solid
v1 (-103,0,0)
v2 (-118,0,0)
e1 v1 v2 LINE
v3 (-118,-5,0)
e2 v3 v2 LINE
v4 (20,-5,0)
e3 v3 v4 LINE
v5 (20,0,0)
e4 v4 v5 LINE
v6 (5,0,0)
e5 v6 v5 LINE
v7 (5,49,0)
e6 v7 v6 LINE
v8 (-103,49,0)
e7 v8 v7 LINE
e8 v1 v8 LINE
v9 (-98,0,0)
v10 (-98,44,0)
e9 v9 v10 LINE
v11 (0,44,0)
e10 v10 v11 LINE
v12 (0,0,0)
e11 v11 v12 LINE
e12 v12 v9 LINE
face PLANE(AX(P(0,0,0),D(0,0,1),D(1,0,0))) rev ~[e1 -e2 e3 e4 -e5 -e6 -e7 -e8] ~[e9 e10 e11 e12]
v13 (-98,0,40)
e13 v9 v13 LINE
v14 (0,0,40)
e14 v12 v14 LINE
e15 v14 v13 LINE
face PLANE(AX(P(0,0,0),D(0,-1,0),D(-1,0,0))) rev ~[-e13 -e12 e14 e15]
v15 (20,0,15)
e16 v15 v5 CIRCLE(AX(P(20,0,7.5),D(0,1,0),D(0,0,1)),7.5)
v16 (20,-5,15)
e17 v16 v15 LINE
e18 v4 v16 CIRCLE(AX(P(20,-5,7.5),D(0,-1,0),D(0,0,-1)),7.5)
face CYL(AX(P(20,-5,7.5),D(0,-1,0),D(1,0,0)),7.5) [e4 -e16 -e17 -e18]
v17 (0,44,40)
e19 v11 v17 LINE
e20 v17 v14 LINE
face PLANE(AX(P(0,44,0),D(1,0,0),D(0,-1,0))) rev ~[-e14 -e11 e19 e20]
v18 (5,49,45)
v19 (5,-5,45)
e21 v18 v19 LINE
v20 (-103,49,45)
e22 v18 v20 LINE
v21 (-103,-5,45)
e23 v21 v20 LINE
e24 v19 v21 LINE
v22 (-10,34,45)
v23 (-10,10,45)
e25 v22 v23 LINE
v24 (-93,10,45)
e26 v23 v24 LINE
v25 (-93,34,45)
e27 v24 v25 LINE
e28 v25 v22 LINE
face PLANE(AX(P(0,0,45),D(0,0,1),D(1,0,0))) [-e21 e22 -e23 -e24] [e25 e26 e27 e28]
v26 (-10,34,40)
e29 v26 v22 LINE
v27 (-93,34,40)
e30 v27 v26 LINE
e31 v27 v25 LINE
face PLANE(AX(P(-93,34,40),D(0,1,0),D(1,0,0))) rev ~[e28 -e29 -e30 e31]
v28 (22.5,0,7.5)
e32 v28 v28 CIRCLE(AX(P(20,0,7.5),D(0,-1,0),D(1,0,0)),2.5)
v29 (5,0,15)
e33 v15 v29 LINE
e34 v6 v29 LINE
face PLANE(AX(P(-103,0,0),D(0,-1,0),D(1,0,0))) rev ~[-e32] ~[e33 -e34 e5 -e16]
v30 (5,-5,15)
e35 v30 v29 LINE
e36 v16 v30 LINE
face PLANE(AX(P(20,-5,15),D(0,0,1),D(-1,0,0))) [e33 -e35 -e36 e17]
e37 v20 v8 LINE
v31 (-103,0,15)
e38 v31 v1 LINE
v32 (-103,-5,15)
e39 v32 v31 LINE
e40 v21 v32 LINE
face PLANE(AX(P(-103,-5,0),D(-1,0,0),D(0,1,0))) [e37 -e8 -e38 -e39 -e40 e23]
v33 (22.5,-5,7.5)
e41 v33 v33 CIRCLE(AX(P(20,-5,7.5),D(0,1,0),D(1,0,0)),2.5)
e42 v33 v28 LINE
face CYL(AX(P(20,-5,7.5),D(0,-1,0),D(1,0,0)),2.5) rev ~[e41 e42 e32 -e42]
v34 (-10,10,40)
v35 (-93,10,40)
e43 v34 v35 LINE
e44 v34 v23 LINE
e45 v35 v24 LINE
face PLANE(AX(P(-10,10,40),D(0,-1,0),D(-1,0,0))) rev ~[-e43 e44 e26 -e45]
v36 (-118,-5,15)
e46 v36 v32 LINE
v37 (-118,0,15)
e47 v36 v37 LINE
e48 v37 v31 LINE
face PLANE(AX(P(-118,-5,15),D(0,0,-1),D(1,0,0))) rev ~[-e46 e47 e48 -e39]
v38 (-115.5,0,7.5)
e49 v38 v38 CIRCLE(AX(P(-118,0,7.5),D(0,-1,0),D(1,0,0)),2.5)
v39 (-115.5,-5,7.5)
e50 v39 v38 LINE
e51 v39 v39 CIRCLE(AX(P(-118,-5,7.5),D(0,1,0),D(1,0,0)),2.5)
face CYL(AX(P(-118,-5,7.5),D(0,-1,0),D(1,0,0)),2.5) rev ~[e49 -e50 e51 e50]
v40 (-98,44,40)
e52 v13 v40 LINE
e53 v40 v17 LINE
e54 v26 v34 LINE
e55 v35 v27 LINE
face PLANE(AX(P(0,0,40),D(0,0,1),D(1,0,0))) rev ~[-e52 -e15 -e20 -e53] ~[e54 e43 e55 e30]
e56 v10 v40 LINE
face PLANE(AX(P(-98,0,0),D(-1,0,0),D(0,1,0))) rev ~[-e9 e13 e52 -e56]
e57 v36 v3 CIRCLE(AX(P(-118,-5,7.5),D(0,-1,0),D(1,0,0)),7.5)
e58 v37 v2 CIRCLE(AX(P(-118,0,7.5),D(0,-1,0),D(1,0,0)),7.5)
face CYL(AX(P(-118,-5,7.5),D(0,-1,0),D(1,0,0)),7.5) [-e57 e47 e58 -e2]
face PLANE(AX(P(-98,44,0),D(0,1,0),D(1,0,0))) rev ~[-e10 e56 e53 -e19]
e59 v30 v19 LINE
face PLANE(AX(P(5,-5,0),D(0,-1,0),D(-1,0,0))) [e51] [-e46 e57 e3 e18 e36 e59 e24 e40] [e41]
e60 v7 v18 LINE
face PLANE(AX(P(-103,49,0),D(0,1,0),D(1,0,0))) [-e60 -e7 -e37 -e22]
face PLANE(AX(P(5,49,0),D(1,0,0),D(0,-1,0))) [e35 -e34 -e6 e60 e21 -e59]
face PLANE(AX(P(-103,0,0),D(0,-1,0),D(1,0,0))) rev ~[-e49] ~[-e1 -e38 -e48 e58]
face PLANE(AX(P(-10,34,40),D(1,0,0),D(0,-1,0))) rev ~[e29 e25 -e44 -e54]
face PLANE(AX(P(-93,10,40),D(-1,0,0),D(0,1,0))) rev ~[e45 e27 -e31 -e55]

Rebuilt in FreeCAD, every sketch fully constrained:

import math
import FreeCAD as App
import Part
import Sketcher

V = App.Vector
Q = App.Units.Quantity


def add_polygon(sketch, points):
    """Adds a closed chain of lines whose ends are joined by coincident constraints."""
    first, n = sketch.GeometryCount, len(points)
    for a, b in zip(points, points[1:] + points[:1]):
        sketch.addGeometry(Part.LineSegment(App.Vector(*a, 0), App.Vector(*b, 0)), False)
    for i in range(n):
        sketch.addConstraint(Sketcher.Constraint("Coincident", first + i, 2, first + (i + 1) % n, 1))

doc = App.newDocument("Part")
body = doc.addObject("PartDesign::Body", "Body")

sketch1 = body.newObject("Sketcher::SketchObject", "Sketch")
sketch1.AttachmentSupport = (doc.getObject("XY_Plane"), [""])
sketch1.MapMode = "FlatFace"
add_polygon(sketch1, [(-103, -5), (5, -5), (5, 49), (-103, 49)])
add_polygon(sketch1, [(0, 44), (0, 0), (-98, 0), (-98, 44)])
sketch1.addConstraint([
    Sketcher.Constraint("Horizontal", 0),
    Sketcher.Constraint("Vertical", 1),
    Sketcher.Constraint("Horizontal", 2),
    Sketcher.Constraint("Vertical", 3),
    Sketcher.Constraint("Vertical", 4),
    Sketcher.Constraint("Horizontal", 5),
    Sketcher.Constraint("Vertical", 6),
    Sketcher.Constraint("Horizontal", 7),
    Sketcher.Constraint("Coincident", 4, 2, -1, 1),
    Sketcher.Constraint("DistanceX", 5, 2, 5, 1, Q("98 mm")),
    Sketcher.Constraint("DistanceY", 4, 2, 4, 1, Q("44 mm")),
    Sketcher.Constraint("DistanceX", -1, 1, 0, 2, Q("5 mm")),
    Sketcher.Constraint("DistanceY", 0, 2, -1, 1, Q("5 mm")),
    Sketcher.Constraint("DistanceX", 3, 2, 5, 2, Q("5 mm")),
    Sketcher.Constraint("DistanceY", 6, 2, 2, 2, Q("5 mm")),
])
pad1 = body.newObject("PartDesign::Pad", "Pad")
pad1.Profile = sketch1
pad1.Length = 40

sketch2 = body.newObject("Sketcher::SketchObject", "Sketch001")
sketch2.AttachmentSupport = (doc.getObject("XY_Plane"), [""])
sketch2.MapMode = "FlatFace"
sketch2.AttachmentOffset = App.Placement(V(0, 0, 40), App.Rotation())
add_polygon(sketch2, [(5, -5), (5, 49), (-103, 49), (-103, -5)])
add_polygon(sketch2, [(-93, 10), (-93, 34), (-10, 34), (-10, 10)])
sketch2.addConstraint([
    Sketcher.Constraint("Vertical", 0),
    Sketcher.Constraint("Horizontal", 1),
    Sketcher.Constraint("Vertical", 2),
    Sketcher.Constraint("Horizontal", 3),
    Sketcher.Constraint("Vertical", 4),
    Sketcher.Constraint("Horizontal", 5),
    Sketcher.Constraint("Vertical", 6),
    Sketcher.Constraint("Horizontal", 7),
    Sketcher.Constraint("DistanceX", 5, 2, -1, 1, Q("10 mm")),
    Sketcher.Constraint("DistanceY", -1, 1, 6, 2, Q("10 mm")),
    Sketcher.Constraint("DistanceX", 1, 2, 4, 2, Q("10 mm")),
    Sketcher.Constraint("DistanceY", 4, 2, 1, 2, Q("15 mm")),
    Sketcher.Constraint("DistanceX", 5, 2, 0, 2, Q("15 mm")),
    Sketcher.Constraint("DistanceY", 3, 2, 6, 2, Q("15 mm")),
    Sketcher.Constraint("DistanceX", 1, 2, 1, 1, Q("108 mm")),
    Sketcher.Constraint("DistanceY", 0, 1, 0, 2, Q("54 mm")),
])
pad2 = body.newObject("PartDesign::Pad", "Pad001")
pad2.Profile = sketch2
pad2.Length = 5

sketch3 = body.newObject("Sketcher::SketchObject", "Sketch002")
sketch3.AttachmentSupport = (doc.getObject("XZ_Plane"), [""])
sketch3.MapMode = "FlatFace"
sketch3.AttachmentOffset = App.Placement(V(0, 0, 5), App.Rotation())
sketch3.addGeometry([
    Part.LineSegment(V(5, 15, 0), V(5, 0, 0)),
    Part.LineSegment(V(5, 0, 0), V(20, 0, 0)),
    Part.ArcOfCircle(Part.Circle(V(20, 7.5, 0), V(0, 0, 1), 7.5), math.radians(-90), math.radians(90)),
    Part.LineSegment(V(20, 15, 0), V(5, 15, 0)),
    Part.Circle(V(20, 7.5, 0), V(0, 0, 1), 2.5),
    Part.LineSegment(V(-118, 0, 0), V(-103, 0, 0)),
    Part.LineSegment(V(-103, 0, 0), V(-103, 15, 0)),
    Part.LineSegment(V(-103, 15, 0), V(-118, 15, 0)),
    Part.ArcOfCircle(Part.Circle(V(-118, 7.5, 0), V(0, 0, 1), 7.5), math.radians(90), math.radians(270)),
    Part.Circle(V(-118, 7.5, 0), V(0, 0, 1), 2.5),
], False)
sketch3.addConstraint([
    Sketcher.Constraint("Coincident", 0, 2, 1, 1),
    Sketcher.Constraint("Tangent", 1, 2, 2, 1),
    Sketcher.Constraint("Tangent", 2, 2, 3, 1),
    Sketcher.Constraint("Coincident", 3, 2, 0, 1),
    Sketcher.Constraint("Coincident", 5, 2, 6, 1),
    Sketcher.Constraint("Coincident", 6, 2, 7, 1),
    Sketcher.Constraint("Tangent", 7, 2, 8, 1),
    Sketcher.Constraint("Tangent", 8, 2, 5, 1),
    Sketcher.Constraint("Vertical", 0),
    Sketcher.Constraint("Horizontal", 1),
    Sketcher.Constraint("Horizontal", 3),
    Sketcher.Constraint("Horizontal", 5),
    Sketcher.Constraint("Vertical", 6),
    Sketcher.Constraint("Horizontal", 7),
    Sketcher.Constraint("Coincident", 4, 3, 2, 3),
    Sketcher.Constraint("Coincident", 9, 3, 8, 3),
    Sketcher.Constraint("Equal", 2, 8),
    Sketcher.Constraint("Equal", 4, 9),
    Sketcher.Constraint("PointOnObject", 0, 2, -1),
    Sketcher.Constraint("PointOnObject", 5, 2, -1),
    Sketcher.Constraint("Equal", 3, 5),
    Sketcher.Constraint("Equal", 7, 0),
    Sketcher.Constraint("Diameter", 4, Q("5 mm")),
    Sketcher.Constraint("Radius", 2, Q("7.5 mm")),
    Sketcher.Constraint("DistanceX", -1, 1, 0, 2, Q("5 mm")),
    Sketcher.Constraint("DistanceX", 8, 3, -1, 1, Q("118 mm")),
])
pad3 = body.newObject("PartDesign::Pad", "Pad002")
pad3.Profile = sketch3
pad3.Length = 5
pad3.Reversed = True

doc.recompute()
